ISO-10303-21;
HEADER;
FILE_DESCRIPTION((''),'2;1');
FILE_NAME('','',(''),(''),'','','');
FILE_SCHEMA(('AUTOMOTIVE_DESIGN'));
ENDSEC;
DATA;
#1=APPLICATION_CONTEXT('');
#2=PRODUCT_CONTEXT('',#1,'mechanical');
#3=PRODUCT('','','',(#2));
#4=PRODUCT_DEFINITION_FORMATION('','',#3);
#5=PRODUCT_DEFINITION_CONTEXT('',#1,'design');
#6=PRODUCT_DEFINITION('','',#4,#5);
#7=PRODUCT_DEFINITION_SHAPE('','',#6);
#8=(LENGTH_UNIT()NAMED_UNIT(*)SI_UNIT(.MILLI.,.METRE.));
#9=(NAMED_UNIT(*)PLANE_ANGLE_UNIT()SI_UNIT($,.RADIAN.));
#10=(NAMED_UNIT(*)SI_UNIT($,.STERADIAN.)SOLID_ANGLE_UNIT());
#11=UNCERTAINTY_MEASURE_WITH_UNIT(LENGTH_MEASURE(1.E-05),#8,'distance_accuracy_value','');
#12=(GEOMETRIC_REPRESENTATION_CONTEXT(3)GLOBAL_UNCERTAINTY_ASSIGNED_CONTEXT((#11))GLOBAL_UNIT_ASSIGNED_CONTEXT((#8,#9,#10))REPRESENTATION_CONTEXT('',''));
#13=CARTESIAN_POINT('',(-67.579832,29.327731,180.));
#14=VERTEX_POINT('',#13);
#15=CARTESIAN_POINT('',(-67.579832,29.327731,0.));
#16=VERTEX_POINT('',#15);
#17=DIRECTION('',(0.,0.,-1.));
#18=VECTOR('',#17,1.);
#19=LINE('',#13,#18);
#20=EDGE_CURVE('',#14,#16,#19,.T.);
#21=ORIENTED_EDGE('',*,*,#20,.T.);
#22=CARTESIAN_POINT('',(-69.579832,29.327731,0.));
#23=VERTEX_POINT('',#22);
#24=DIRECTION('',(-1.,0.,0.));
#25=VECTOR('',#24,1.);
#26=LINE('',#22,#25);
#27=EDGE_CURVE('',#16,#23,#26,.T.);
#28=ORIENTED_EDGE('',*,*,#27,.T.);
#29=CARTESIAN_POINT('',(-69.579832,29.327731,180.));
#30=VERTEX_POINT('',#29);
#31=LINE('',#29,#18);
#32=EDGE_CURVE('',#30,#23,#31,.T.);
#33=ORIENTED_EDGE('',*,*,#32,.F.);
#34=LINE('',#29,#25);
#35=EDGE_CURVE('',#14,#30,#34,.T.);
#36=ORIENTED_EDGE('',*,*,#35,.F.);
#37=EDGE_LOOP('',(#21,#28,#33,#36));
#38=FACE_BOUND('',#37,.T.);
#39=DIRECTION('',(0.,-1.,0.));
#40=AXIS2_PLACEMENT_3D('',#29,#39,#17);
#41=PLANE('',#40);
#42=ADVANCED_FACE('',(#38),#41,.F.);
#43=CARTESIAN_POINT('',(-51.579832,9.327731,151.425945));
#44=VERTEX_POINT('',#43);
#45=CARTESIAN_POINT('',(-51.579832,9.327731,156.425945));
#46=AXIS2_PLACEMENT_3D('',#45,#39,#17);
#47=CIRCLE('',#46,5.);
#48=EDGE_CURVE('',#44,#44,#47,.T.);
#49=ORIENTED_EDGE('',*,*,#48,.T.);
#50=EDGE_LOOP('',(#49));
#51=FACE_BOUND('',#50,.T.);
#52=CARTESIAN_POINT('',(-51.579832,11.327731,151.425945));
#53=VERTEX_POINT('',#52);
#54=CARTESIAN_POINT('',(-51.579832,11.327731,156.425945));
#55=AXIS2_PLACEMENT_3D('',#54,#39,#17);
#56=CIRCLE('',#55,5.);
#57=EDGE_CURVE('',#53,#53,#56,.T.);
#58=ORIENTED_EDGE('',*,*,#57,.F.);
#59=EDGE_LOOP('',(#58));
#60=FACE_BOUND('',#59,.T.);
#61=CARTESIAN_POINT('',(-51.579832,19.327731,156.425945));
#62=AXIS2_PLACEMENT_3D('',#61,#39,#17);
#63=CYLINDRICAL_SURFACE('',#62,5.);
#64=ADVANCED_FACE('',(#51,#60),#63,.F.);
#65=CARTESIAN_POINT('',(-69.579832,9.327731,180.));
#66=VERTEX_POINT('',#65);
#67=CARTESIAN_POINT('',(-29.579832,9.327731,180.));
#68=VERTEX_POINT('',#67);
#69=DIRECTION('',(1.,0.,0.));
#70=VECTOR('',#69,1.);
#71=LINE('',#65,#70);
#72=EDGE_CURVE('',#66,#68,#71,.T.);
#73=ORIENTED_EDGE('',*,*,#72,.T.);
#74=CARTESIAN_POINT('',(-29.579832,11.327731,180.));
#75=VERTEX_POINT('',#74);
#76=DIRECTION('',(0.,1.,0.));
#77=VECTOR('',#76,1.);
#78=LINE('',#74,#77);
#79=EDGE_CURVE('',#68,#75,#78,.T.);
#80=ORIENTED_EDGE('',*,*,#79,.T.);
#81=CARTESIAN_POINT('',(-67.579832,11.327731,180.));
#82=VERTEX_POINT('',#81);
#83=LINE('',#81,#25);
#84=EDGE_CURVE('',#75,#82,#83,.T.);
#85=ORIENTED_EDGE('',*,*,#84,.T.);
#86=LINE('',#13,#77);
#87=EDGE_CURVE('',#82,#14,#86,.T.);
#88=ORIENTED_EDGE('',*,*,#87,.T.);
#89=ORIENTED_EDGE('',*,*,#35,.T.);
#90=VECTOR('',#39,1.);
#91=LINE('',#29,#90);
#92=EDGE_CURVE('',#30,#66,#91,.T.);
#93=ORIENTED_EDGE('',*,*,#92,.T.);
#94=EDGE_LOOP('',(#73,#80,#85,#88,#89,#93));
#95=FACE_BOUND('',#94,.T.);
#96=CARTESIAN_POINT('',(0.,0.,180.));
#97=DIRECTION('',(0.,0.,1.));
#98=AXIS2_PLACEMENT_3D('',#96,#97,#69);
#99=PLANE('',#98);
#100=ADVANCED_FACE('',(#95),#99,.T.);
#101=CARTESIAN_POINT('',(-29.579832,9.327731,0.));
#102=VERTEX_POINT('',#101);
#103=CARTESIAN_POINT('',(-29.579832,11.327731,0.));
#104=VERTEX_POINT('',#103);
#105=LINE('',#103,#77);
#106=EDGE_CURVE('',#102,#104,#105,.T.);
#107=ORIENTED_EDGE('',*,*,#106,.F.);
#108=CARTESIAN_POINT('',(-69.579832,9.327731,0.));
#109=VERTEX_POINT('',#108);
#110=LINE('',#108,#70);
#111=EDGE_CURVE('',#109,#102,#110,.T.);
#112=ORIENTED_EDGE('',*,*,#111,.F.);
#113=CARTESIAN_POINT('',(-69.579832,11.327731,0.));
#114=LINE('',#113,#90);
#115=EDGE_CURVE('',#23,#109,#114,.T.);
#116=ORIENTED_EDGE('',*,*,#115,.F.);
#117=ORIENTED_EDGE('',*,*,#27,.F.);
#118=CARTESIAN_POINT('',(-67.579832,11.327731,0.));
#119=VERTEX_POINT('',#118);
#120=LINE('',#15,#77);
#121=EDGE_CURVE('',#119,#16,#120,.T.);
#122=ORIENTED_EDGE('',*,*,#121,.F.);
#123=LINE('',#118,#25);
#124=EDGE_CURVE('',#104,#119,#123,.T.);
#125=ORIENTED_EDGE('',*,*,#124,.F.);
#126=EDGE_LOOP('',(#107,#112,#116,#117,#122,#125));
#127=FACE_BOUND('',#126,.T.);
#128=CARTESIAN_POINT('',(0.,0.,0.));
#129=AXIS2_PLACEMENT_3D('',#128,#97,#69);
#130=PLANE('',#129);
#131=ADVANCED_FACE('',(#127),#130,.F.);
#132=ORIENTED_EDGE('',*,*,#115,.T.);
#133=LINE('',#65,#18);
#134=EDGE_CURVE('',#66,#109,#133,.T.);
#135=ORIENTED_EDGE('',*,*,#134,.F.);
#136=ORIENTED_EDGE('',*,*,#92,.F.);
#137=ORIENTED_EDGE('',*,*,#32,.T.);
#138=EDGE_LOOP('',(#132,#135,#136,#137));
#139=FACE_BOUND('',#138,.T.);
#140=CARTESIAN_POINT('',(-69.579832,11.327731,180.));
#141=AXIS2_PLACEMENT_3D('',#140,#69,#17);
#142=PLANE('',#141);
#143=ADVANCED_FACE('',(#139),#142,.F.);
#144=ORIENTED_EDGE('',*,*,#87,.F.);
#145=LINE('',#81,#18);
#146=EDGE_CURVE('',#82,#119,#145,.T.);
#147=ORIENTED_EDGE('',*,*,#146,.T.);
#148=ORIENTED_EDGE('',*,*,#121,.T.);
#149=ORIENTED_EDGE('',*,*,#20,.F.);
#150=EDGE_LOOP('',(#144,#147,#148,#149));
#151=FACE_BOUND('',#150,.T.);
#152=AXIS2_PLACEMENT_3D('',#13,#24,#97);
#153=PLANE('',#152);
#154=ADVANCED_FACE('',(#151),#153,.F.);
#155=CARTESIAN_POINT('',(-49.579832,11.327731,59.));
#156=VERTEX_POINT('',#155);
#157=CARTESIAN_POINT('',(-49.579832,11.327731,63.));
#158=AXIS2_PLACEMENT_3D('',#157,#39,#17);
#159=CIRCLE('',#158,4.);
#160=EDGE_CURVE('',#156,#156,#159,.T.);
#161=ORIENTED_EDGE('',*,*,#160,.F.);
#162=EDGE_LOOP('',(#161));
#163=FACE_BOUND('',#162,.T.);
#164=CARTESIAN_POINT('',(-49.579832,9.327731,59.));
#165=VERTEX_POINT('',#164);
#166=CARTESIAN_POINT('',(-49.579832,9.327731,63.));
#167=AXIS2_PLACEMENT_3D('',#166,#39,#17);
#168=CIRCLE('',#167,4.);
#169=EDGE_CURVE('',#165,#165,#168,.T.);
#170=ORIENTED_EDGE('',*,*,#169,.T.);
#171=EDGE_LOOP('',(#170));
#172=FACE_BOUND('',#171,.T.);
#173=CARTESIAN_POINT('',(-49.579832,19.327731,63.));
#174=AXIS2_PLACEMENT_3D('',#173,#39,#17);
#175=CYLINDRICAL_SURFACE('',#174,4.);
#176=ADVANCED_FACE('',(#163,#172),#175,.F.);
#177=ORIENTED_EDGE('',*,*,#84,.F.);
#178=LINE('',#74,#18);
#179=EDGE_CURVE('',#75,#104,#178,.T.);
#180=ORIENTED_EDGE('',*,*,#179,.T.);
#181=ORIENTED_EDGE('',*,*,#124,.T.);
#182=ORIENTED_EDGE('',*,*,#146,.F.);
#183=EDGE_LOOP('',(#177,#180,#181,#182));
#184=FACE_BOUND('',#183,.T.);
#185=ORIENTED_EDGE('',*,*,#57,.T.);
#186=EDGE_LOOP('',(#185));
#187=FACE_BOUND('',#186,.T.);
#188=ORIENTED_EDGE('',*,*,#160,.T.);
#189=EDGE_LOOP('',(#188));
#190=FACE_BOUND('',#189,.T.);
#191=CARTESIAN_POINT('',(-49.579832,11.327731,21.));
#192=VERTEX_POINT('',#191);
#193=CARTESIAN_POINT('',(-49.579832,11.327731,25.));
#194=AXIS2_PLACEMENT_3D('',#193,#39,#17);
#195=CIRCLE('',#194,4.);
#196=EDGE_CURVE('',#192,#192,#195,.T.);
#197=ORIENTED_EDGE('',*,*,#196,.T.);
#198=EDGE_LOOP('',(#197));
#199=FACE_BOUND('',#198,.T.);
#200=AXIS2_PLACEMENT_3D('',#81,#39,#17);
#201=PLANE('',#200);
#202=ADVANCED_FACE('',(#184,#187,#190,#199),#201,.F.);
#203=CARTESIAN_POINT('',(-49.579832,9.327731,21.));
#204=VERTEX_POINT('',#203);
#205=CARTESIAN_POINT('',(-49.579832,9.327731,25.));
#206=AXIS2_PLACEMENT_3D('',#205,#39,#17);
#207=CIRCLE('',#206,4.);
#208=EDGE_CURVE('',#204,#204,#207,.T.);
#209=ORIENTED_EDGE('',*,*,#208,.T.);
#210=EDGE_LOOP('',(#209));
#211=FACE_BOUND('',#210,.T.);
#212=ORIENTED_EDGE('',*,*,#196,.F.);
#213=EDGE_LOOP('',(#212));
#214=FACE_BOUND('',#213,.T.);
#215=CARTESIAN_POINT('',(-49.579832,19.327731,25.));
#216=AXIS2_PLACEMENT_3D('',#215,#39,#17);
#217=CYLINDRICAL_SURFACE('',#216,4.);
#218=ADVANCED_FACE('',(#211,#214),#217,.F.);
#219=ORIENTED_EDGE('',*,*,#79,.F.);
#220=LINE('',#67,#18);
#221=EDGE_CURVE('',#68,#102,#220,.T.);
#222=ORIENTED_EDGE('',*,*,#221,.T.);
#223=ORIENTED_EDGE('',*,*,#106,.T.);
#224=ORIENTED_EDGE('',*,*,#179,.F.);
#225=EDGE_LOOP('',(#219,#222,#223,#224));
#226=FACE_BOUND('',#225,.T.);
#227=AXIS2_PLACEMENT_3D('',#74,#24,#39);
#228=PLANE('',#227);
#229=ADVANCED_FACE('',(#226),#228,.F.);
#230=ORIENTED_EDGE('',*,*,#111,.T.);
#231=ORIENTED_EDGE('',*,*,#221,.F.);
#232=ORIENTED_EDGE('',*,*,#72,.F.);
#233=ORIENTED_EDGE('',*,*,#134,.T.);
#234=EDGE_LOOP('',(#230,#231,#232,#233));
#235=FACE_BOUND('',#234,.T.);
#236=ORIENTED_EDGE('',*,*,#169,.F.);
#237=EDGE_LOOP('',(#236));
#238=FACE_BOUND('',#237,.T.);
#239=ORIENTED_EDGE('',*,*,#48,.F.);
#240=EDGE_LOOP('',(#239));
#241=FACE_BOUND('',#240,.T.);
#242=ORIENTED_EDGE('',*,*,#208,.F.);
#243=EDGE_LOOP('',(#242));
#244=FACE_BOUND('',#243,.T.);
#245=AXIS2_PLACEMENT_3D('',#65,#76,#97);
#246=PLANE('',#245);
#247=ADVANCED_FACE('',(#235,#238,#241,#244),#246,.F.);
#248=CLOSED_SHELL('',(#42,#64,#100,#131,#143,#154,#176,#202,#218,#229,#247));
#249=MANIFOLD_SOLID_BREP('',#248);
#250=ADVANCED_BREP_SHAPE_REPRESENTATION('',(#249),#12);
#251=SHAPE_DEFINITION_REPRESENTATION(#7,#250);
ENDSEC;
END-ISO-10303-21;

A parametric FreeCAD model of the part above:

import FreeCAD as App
import Part
import Sketcher
from FreeCAD import Vector


def add_polygon(sketch, points):
    """Adds a closed chain of lines whose ends are joined by coincident constraints."""
    first, n = sketch.GeometryCount, len(points)
    for a, b in zip(points, points[1:] + points[:1]):
        sketch.addGeometry(Part.LineSegment(App.Vector(*a, 0), App.Vector(*b, 0)), False)
    for i in range(n):
        sketch.addConstraint(Sketcher.Constraint("Coincident", first + i, 2, first + (i + 1) % n, 1))

doc = App.newDocument("Part")
params = doc.addObject("Spreadsheet::Sheet", "Params")
for row, (alias, value) in enumerate([
    ("sketch1_width", "2 mm"),
    ("sketch1_width2", "40 mm"),
    ("sketch1_height", "20 mm"),
    ("pad1_length", "180 mm"),
    ("sketch2_diameter", "8 mm"),
    ("sketch2_diameter2", "10 mm"),
    ("pocket1_length", "10 mm"),
], start=1):
    params.set(f"A{row}", alias)
    params.set(f"B{row}", "=" + value)
    params.setAlias(f"B{row}", alias)

body = doc.addObject("PartDesign::Body", "Body")

sketch1 = body.newObject("Sketcher::SketchObject", "Sketch")
sketch1.AttachmentSupport = (doc.getObject("XY_Plane"), [""])
sketch1.MapMode = "FlatFace"
add_polygon(sketch1, [(-67.6, 29.3), (-69.6, 29.3), (-69.6, 9.3), (-29.6, 9.3), (-29.6, 11.3), (-67.6, 11.3)])
sketch1.addConstraint([
    Sketcher.Constraint("Horizontal", 0),
    Sketcher.Constraint("Vertical", 1),
    Sketcher.Constraint("Horizontal", 2),
    Sketcher.Constraint("Vertical", 3),
    Sketcher.Constraint("Horizontal", 4),
    Sketcher.Constraint("Vertical", 5),
    Sketcher.Constraint("Equal", 0, 3),
    Sketcher.Constraint("DistanceX", 0, 2, 0, 1, 2.0),
    Sketcher.Constraint("DistanceX", 2, 1, 2, 2, 40.0),
    Sketcher.Constraint("DistanceY", 1, 2, 1, 1, 20.0),
    Sketcher.Constraint("DistanceX", 0, 2, -1, 1, 69.579832),
    Sketcher.Constraint("DistanceY", -1, 1, 0, 2, 29.327731),
])
sketch1.setExpression("Constraints[13]", "Params.sketch1_width")
sketch1.setExpression("Constraints[14]", "Params.sketch1_width2")
sketch1.setExpression("Constraints[15]", "Params.sketch1_height")
pad1 = body.newObject("PartDesign::Pad", "Pad")
pad1.Profile = sketch1
pad1.setExpression("Length", "Params.pad1_length")

sketch2 = body.newObject("Sketcher::SketchObject", "Sketch001")
sketch2.AttachmentSupport = (doc.getObject("XZ_Plane"), [""])
sketch2.MapMode = "FlatFace"
sketch2.AttachmentOffset = App.Placement(Vector(0, 0, -9.327731), App.Rotation())
sketch2.addGeometry([
    Part.Circle(Vector(-49.6, 63, 0), Vector(0, 0, 1), 4),
    Part.Circle(Vector(-49.6, 25, 0), Vector(0, 0, 1), 4),
    Part.Circle(Vector(-51.6, 156.4, 0), Vector(0, 0, 1), 5),
], False)
sketch2.addConstraint([
    Sketcher.Constraint("Equal", 0, 1),
    Sketcher.Constraint("Vertical", 0, 3, 1, 3),
    Sketcher.Constraint("Diameter", 0, 8.0),
    Sketcher.Constraint("Diameter", 2, 10.0),
    Sketcher.Constraint("DistanceY", -1, 1, 0, 3, 63.0),
    Sketcher.Constraint("DistanceY", -1, 1, 1, 3, 25.0),
    Sketcher.Constraint("DistanceX", 2, 3, 0, 3, 2.0),
    Sketcher.Constraint("DistanceX", 0, 3, -1, 1, 49.579832),
    Sketcher.Constraint("DistanceY", -1, 1, 2, 3, 156.425945),
])
sketch2.setExpression("Constraints[2]", "Params.sketch2_diameter")
sketch2.setExpression("Constraints[3]", "Params.sketch2_diameter2")
pocket1 = body.newObject("PartDesign::Pocket", "Pocket")
pocket1.Profile = sketch2
pocket1.setExpression("Length", "Params.pocket1_length")

doc.recompute()
